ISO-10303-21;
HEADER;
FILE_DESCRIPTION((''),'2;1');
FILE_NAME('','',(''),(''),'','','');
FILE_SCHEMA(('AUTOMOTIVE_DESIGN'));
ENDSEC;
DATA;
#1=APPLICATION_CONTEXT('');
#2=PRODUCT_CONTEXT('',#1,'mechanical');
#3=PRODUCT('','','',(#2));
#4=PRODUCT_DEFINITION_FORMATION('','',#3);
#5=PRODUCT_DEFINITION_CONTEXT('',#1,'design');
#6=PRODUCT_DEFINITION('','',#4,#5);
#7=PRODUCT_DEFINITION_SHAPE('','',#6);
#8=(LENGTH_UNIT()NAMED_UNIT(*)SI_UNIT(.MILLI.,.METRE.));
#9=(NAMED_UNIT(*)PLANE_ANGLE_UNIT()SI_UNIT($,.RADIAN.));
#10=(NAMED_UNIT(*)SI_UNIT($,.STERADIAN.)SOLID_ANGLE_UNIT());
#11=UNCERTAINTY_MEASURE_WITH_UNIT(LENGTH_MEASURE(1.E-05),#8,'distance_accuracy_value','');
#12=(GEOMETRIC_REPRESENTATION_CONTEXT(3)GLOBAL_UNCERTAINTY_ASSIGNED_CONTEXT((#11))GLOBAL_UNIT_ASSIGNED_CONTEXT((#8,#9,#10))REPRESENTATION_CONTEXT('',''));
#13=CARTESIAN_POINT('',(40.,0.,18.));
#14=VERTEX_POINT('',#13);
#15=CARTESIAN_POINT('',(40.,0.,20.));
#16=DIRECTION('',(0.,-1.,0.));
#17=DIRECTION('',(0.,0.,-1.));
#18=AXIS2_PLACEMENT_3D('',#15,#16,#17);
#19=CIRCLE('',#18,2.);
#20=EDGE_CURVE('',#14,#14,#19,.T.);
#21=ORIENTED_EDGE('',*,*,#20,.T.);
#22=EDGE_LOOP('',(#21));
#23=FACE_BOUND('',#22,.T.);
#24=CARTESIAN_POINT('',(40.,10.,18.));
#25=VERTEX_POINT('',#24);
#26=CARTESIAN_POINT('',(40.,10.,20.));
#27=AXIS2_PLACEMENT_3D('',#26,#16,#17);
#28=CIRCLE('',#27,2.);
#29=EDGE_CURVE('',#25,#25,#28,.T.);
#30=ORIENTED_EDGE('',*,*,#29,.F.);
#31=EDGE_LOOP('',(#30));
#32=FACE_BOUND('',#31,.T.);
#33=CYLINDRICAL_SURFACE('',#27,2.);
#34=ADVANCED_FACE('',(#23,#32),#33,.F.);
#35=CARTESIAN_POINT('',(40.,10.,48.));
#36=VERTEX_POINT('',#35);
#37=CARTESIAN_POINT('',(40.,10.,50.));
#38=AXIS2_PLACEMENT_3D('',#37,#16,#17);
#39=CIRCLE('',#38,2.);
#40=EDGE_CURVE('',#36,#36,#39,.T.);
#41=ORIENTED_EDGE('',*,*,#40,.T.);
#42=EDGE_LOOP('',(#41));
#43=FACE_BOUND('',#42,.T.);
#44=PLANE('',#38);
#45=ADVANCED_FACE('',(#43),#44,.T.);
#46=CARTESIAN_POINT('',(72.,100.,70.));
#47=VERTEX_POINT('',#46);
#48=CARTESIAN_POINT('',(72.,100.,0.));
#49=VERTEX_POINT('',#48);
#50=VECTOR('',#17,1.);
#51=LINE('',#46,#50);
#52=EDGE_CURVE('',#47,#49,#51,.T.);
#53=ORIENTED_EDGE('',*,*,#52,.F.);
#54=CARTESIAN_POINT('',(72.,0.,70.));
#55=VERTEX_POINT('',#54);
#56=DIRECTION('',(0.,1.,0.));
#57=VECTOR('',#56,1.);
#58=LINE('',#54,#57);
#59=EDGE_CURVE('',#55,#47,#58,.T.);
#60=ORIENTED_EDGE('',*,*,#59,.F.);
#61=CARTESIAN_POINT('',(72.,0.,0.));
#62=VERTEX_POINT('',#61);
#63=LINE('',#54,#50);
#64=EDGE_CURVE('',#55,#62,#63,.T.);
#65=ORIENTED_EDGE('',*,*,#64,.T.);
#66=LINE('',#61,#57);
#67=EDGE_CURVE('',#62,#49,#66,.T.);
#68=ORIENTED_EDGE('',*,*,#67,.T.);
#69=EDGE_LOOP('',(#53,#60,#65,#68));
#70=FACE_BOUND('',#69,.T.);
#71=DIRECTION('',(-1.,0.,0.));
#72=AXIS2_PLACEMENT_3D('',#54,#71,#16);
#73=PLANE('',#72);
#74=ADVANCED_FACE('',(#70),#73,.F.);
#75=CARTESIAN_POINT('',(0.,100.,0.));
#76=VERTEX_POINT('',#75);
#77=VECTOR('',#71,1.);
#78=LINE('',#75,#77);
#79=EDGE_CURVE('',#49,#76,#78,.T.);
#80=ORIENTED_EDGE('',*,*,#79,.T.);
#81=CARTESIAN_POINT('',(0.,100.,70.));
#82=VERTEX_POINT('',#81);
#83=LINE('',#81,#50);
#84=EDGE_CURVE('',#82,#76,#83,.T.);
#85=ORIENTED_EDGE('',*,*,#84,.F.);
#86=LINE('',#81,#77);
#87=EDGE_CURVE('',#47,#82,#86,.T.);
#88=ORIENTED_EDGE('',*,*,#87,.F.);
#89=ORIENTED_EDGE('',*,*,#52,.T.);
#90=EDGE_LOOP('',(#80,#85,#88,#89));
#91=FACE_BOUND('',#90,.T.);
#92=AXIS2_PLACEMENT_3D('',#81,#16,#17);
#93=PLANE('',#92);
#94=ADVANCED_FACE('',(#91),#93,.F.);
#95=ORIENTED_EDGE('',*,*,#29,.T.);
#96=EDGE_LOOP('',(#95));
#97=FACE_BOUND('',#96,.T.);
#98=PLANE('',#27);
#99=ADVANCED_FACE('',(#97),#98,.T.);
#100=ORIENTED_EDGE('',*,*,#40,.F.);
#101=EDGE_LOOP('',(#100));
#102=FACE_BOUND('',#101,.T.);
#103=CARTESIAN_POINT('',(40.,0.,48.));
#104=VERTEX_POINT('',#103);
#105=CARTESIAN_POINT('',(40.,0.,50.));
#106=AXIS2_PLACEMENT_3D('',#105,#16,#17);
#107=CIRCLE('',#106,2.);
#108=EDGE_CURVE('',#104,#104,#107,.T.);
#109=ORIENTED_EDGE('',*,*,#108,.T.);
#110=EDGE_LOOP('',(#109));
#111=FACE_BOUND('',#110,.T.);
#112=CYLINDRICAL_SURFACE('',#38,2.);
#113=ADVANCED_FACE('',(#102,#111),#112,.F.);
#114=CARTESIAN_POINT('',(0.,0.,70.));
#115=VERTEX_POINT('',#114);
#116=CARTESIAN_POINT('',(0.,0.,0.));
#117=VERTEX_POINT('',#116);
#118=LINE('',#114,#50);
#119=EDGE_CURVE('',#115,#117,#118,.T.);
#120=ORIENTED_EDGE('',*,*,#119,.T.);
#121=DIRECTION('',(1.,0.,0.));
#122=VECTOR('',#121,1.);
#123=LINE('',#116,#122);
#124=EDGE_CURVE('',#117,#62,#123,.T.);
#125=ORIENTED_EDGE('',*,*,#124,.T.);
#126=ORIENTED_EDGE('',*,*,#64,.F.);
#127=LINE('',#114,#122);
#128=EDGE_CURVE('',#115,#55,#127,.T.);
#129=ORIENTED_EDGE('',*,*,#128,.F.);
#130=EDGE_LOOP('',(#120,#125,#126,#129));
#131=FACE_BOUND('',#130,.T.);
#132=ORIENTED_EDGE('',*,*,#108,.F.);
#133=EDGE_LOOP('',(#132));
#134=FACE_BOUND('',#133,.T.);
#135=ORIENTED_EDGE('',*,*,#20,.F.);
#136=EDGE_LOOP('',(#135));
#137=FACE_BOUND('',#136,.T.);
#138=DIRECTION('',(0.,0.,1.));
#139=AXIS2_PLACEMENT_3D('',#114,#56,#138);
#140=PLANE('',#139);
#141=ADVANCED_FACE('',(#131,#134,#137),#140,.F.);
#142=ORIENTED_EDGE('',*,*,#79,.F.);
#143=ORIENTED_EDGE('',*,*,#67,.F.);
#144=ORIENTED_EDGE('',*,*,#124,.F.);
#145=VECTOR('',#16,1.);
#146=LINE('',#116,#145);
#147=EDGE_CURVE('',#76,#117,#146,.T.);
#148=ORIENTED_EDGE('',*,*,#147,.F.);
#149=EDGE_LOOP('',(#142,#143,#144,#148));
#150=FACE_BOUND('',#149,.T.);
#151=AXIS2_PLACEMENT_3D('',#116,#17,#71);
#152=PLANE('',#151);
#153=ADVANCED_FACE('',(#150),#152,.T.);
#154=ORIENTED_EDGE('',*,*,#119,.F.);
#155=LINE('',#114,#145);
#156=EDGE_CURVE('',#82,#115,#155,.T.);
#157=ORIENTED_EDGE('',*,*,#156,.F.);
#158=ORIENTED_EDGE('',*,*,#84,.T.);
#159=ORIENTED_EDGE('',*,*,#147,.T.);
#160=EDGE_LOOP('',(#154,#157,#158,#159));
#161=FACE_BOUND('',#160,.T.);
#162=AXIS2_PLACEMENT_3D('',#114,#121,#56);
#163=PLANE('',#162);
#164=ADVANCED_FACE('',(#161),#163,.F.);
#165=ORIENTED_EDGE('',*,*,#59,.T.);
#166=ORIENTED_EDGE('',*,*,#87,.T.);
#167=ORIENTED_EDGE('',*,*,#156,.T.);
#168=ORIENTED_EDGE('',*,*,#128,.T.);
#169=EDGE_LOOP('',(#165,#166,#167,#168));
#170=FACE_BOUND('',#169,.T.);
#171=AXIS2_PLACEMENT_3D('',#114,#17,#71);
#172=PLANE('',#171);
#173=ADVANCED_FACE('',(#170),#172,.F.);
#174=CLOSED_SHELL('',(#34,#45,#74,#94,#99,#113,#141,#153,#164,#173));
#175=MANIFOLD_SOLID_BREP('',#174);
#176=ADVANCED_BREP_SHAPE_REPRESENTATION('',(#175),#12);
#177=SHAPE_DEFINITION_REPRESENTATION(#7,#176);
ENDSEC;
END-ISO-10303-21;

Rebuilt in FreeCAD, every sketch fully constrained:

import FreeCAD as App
import Part
import Sketcher

V = App.Vector


def add_polygon(sketch, points):
    """Adds a closed chain of lines whose ends are joined by coincident constraints."""
    first, n = sketch.GeometryCount, len(points)
    for a, b in zip(points, points[1:] + points[:1]):
        sketch.addGeometry(Part.LineSegment(App.Vector(*a, 0), App.Vector(*b, 0)), False)
    for i in range(n):
        sketch.addConstraint(Sketcher.Constraint("Coincident", first + i, 2, first + (i + 1) % n, 1))

doc = App.newDocument("Part")
body = doc.addObject("PartDesign::Body", "Body")

# Sketch on XY plane
sketch1 = doc.addObject("Sketcher::SketchObject", "Sketch")
body.addObject(sketch1)
sketch1.AttachmentSupport = (doc.XY_Plane, [""])
sketch1.MapMode = "FlatFace"
add_polygon(sketch1, [(0, 100), (0, 0), (72, 0), (72, 100)])  # lines 0-3
sketch1.addConstraint(Sketcher.Constraint("Vertical", 0))
sketch1.addConstraint(Sketcher.Constraint("Horizontal", 1))
sketch1.addConstraint(Sketcher.Constraint("Vertical", 2))
sketch1.addConstraint(Sketcher.Constraint("Horizontal", 3))
sketch1.addConstraint(Sketcher.Constraint("Coincident", 0, 2, -1, 1))
sketch1.addConstraint(Sketcher.Constraint("DistanceX", 1, 1, 1, 2, 72.0))
sketch1.addConstraint(Sketcher.Constraint("DistanceY", 0, 2, 0, 1, 100.0))
pad1 = doc.addObject("PartDesign::Pad", "Pad")
body.addObject(pad1)
pad1.Profile = sketch1
pad1.Length = 70

# Sketch on XZ plane
sketch2 = doc.addObject("Sketcher::SketchObject", "Sketch001")
body.addObject(sketch2)
sketch2.AttachmentSupport = (doc.XZ_Plane, [""])
sketch2.MapMode = "FlatFace"
sketch2.addGeometry(Part.Circle(V(40, 50, 0), V(0, 0, 1), 2), False)
sketch2.addGeometry(Part.Circle(V(40, 20, 0), V(0, 0, 1), 2), False)
sketch2.addConstraint(Sketcher.Constraint("Equal", 0, 1))
sketch2.addConstraint(Sketcher.Constraint("Vertical", 0, 3, 1, 3))
sketch2.addConstraint(Sketcher.Constraint("Diameter", 0, 4.0))
sketch2.addConstraint(Sketcher.Constraint("DistanceX", -1, 1, 0, 3, 40.0))
sketch2.addConstraint(Sketcher.Constraint("DistanceY", -1, 1, 0, 3, 50.0))
sketch2.addConstraint(Sketcher.Constraint("DistanceY", -1, 1, 1, 3, 20.0))
pocket1 = doc.addObject("PartDesign::Pocket", "Pocket")
body.addObject(pocket1)
pocket1.Profile = sketch2
pocket1.Length = 10

doc.recompute()
